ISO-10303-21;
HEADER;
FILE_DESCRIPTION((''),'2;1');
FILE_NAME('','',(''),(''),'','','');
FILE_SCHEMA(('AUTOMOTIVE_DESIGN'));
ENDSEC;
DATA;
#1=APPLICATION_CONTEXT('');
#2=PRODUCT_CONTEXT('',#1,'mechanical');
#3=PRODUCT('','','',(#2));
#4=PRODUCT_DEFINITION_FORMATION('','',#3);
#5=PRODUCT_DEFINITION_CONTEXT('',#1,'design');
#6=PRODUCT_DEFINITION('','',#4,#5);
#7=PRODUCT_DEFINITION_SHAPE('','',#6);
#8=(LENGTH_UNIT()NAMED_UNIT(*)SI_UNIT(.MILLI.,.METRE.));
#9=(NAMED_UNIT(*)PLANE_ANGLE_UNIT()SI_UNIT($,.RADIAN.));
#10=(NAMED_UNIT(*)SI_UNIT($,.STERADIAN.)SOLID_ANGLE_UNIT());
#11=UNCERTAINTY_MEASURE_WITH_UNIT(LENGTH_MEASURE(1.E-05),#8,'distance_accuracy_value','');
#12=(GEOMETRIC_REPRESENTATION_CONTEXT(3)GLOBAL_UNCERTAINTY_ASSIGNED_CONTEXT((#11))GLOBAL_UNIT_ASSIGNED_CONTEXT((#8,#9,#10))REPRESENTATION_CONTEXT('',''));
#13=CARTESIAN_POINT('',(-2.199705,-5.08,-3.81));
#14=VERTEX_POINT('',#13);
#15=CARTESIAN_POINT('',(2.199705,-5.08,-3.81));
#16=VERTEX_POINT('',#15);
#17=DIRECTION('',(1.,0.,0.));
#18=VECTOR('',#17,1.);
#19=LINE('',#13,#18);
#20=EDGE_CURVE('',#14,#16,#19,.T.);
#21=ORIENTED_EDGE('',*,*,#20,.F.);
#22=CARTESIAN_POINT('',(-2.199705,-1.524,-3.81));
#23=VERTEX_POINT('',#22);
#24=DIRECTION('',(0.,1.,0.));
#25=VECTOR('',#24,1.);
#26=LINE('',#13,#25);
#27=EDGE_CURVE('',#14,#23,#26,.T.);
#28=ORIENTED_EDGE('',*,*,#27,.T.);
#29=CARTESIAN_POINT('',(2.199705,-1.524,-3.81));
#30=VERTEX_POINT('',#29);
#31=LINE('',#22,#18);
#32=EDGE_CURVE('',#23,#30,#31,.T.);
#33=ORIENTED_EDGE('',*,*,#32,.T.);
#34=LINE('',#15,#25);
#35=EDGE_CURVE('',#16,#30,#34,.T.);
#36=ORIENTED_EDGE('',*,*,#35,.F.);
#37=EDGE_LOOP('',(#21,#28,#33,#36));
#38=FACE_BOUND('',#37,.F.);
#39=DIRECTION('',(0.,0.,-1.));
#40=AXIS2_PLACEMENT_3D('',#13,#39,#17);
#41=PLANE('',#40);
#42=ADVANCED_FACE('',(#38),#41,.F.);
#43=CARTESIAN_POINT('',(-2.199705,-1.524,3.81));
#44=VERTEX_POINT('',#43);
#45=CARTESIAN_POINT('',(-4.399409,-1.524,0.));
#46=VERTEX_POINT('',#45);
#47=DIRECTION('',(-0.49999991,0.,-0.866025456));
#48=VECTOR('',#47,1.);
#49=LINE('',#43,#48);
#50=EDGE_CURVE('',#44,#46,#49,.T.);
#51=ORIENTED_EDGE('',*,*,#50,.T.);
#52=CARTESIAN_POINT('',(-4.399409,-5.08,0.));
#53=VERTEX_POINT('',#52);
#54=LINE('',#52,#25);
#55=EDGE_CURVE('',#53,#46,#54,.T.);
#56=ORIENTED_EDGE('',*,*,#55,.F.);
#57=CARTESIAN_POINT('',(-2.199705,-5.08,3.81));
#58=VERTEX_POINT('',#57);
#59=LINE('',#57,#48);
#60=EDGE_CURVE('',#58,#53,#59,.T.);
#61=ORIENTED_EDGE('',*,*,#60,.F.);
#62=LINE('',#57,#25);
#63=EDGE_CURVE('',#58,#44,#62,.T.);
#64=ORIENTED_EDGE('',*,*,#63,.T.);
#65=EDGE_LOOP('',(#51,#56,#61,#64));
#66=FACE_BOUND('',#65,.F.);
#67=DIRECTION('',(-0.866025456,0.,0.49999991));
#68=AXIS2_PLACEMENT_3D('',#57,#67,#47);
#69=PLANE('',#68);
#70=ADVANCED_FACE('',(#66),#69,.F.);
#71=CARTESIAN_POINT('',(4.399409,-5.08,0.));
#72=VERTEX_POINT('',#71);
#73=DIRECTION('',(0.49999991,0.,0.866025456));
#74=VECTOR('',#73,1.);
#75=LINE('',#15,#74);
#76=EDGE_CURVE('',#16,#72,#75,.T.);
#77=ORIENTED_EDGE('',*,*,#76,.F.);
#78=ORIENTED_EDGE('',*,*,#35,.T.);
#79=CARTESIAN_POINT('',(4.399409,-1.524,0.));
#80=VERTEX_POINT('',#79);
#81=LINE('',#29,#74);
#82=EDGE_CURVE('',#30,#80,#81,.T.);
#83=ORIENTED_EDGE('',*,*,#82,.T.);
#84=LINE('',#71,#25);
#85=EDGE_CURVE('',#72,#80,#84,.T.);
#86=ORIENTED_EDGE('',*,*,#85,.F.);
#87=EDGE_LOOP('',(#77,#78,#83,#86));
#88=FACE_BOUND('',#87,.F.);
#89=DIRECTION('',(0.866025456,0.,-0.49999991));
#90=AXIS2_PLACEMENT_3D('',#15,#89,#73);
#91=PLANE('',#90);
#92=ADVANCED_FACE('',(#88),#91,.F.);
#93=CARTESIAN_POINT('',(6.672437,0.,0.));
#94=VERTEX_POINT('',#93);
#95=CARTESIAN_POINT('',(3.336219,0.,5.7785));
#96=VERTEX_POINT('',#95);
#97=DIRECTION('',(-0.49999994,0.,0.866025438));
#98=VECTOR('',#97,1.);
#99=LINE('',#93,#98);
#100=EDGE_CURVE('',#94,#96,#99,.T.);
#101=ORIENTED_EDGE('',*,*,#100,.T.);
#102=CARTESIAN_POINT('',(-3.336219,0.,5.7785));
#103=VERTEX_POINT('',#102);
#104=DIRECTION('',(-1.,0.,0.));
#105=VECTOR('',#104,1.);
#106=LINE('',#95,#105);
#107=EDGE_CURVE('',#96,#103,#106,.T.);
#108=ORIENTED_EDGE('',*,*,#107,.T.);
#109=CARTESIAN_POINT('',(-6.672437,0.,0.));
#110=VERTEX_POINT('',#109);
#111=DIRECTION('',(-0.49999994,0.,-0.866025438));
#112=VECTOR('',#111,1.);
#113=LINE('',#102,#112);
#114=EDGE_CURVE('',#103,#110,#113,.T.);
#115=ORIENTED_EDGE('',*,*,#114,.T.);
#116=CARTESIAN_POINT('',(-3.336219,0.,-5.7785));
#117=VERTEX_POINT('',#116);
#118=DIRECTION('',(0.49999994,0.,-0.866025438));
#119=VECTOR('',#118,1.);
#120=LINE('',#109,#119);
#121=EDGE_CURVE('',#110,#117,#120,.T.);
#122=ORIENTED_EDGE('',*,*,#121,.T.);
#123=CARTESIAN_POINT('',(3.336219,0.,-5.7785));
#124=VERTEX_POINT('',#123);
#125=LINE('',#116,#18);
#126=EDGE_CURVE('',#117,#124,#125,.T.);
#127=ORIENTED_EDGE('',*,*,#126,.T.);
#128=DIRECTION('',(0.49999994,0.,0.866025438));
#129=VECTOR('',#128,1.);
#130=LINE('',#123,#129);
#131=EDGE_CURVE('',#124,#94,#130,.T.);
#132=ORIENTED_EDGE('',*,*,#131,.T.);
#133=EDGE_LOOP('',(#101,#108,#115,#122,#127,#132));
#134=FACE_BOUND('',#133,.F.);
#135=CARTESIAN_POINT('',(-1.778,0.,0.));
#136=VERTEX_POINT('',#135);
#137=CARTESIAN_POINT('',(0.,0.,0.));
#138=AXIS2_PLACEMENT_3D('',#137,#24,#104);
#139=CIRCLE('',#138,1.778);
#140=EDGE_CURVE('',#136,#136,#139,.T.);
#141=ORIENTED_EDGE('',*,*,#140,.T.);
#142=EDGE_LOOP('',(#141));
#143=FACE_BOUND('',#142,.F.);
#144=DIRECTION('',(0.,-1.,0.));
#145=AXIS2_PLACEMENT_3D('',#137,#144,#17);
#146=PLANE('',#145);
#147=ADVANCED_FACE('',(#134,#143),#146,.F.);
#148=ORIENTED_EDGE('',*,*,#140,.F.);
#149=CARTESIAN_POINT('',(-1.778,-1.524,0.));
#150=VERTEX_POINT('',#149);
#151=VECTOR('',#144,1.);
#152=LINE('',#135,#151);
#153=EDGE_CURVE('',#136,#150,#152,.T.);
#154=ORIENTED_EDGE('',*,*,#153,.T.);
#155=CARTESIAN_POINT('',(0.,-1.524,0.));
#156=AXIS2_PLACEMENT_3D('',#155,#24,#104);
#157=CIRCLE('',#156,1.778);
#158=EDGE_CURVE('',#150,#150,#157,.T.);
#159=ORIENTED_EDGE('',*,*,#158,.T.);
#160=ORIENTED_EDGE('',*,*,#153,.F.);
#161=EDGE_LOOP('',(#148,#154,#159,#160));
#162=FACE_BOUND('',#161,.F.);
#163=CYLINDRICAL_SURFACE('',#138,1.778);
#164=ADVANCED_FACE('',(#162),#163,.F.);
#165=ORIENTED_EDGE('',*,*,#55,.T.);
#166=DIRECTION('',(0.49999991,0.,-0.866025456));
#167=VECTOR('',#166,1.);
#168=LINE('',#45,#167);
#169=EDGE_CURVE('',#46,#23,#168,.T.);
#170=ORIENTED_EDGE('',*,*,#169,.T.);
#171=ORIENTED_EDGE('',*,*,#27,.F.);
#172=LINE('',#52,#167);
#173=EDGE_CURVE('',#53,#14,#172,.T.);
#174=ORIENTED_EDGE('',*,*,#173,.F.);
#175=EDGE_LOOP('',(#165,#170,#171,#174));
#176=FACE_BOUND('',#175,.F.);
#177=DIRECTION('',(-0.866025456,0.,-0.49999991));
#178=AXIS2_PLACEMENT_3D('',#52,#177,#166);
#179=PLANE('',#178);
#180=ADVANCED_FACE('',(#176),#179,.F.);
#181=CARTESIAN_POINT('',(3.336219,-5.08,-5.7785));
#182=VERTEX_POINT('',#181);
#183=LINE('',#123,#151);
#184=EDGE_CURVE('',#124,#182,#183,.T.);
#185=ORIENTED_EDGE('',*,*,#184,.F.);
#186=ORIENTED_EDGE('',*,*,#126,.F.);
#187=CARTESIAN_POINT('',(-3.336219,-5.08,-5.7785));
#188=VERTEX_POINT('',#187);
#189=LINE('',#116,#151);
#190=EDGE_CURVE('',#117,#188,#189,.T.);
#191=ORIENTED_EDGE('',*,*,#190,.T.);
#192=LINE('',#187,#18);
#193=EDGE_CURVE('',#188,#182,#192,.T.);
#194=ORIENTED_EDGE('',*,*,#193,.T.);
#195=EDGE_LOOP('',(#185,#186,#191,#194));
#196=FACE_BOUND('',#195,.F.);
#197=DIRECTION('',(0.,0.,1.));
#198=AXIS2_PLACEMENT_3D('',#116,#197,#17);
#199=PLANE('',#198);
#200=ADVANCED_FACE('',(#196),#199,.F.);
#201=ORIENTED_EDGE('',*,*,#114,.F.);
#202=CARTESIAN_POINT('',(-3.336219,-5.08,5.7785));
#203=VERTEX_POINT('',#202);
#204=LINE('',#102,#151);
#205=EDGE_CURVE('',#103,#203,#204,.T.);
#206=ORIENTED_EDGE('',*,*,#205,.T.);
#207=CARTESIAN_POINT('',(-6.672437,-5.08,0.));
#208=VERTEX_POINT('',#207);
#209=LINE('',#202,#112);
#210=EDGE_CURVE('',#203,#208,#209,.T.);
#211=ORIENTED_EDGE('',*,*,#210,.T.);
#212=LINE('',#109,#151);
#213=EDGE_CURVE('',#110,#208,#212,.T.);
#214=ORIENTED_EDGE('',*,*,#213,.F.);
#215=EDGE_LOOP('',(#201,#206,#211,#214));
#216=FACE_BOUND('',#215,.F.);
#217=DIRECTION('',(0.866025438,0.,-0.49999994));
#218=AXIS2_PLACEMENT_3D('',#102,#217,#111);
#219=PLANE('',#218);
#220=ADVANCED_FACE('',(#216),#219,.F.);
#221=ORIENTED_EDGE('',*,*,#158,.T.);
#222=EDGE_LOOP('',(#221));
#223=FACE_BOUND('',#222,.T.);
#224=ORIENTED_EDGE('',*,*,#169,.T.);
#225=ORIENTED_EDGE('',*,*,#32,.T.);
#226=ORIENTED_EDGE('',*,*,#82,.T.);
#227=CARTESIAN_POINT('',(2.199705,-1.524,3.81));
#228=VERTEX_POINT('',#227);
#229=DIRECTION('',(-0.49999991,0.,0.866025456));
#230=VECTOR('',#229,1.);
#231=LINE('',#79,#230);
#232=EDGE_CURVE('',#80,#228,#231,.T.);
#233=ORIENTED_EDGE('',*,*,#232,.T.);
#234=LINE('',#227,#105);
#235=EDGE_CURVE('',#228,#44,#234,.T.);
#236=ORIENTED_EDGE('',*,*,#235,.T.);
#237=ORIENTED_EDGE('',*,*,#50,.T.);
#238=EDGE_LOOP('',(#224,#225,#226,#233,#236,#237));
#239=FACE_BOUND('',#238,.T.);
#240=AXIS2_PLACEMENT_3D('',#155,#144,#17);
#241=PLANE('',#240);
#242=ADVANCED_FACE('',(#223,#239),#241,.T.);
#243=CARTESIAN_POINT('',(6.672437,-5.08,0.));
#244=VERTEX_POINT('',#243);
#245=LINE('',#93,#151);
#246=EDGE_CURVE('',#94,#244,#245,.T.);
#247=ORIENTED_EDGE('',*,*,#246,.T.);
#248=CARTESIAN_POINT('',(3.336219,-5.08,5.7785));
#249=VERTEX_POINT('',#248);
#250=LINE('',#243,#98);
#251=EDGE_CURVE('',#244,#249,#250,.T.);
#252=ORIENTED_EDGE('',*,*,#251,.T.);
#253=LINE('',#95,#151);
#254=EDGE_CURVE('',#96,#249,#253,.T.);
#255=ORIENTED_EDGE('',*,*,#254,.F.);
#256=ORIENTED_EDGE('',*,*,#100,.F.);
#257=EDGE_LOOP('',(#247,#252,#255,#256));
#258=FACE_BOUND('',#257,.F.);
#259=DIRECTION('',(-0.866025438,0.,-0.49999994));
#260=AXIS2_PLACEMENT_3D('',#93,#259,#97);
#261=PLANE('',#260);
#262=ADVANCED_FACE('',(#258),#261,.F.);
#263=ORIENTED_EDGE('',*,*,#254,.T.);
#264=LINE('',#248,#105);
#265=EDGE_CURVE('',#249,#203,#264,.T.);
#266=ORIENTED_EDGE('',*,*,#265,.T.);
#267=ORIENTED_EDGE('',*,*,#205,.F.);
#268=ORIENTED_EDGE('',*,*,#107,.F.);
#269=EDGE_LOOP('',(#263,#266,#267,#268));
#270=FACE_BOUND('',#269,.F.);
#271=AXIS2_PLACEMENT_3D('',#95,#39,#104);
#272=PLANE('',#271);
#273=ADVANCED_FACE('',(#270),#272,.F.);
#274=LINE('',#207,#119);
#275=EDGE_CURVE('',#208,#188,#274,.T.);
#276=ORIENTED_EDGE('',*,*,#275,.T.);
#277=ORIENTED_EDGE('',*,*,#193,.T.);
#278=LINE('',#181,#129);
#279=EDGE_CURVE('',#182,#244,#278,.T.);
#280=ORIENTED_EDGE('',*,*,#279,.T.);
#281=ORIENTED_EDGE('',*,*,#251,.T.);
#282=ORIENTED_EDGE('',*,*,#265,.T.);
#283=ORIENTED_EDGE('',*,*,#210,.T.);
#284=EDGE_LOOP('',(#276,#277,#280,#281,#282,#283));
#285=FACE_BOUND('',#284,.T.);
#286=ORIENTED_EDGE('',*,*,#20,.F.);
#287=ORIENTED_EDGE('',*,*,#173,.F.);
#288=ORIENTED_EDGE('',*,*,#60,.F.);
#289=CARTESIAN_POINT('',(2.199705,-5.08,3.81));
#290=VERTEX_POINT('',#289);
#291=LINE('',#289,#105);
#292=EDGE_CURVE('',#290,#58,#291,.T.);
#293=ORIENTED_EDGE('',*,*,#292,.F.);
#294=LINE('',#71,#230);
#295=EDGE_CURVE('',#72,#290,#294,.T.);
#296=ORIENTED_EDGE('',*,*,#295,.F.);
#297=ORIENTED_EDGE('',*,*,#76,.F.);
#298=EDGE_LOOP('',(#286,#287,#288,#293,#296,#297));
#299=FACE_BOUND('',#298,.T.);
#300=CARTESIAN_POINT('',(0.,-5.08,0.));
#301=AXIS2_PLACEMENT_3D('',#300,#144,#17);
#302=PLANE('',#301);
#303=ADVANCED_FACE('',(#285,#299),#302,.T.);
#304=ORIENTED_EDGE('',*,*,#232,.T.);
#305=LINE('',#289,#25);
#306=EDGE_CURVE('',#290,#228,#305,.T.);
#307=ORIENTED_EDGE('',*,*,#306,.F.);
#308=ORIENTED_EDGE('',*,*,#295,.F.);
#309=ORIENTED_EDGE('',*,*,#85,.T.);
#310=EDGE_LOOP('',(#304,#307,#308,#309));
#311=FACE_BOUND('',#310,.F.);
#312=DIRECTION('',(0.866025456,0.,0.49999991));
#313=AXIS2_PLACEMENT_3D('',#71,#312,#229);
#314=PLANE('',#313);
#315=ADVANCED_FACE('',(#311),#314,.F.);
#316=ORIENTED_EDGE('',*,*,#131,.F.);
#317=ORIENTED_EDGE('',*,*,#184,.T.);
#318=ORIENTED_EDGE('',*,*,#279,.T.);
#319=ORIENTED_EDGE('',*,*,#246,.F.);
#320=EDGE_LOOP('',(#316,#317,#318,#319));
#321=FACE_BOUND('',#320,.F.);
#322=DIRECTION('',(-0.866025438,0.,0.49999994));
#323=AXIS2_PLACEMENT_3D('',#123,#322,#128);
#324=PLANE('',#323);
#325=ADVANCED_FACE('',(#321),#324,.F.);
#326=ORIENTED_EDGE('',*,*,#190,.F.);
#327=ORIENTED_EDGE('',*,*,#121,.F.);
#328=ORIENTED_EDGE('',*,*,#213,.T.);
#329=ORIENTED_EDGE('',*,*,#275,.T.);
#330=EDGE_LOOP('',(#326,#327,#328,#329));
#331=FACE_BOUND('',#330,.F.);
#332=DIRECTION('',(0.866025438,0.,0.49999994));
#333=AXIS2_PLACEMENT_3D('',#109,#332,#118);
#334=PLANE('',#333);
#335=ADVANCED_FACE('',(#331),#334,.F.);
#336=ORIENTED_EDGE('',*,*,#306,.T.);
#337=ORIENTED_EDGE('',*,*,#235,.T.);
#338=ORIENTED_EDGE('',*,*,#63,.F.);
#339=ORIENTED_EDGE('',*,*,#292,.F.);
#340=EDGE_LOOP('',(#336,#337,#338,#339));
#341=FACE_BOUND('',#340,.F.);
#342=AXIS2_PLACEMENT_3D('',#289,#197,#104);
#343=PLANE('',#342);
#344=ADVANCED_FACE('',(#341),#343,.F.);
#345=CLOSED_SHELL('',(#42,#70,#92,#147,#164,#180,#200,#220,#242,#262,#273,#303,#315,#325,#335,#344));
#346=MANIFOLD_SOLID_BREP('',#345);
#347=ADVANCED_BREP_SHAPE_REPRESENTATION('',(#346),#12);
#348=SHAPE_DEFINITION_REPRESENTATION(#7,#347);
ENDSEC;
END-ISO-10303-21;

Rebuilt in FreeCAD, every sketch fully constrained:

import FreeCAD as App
import Part
import Sketcher

V = App.Vector
Q = App.Units.Quantity

doc = App.newDocument("Part")
body = doc.addObject("PartDesign::Body", "Body")

# Sketch on XZ plane
sketch1 = body.newObject("Sketcher::SketchObject", "Sketch")
sketch1.AttachmentSupport = (doc.getObject("XZ_Plane"), [""])
sketch1.MapMode = "FlatFace"
sketch1.addGeometry(Part.LineSegment(V(3, 6, 0), V(-3, 6, 0)), False)
sketch1.addGeometry(Part.LineSegment(V(-3, 6, 0), V(-7, 0, 0)), False)
sketch1.addGeometry(Part.LineSegment(V(-7, 0, 0), V(-3, -6, 0)), False)
sketch1.addGeometry(Part.LineSegment(V(-3, -6, 0), V(3, -6, 0)), False)
sketch1.addGeometry(Part.LineSegment(V(3, -6, 0), V(7, 0, 0)), False)
sketch1.addGeometry(Part.LineSegment(V(7, 0, 0), V(3, 6, 0)), False)
sketch1.addConstraint(Sketcher.Constraint("Coincident", 0, 2, 1, 1))
sketch1.addConstraint(Sketcher.Constraint("Coincident", 1, 2, 2, 1))
sketch1.addConstraint(Sketcher.Constraint("Coincident", 2, 2, 3, 1))
sketch1.addConstraint(Sketcher.Constraint("Coincident", 3, 2, 4, 1))
sketch1.addConstraint(Sketcher.Constraint("Coincident", 4, 2, 5, 1))
sketch1.addConstraint(Sketcher.Constraint("Coincident", 5, 2, 0, 1))
sketch1.addConstraint(Sketcher.Constraint("Horizontal", 0))
sketch1.addConstraint(Sketcher.Constraint("Horizontal", 3))
sketch1.addConstraint(Sketcher.Constraint("Symmetric", 0, 2, 3, 2, -1, 1))
sketch1.addConstraint(Sketcher.Constraint("Symmetric", 1, 2, 4, 2, -1, 1))
sketch1.addConstraint(Sketcher.Constraint("PointOnObject", 1, 2, -1))
sketch1.addConstraint(Sketcher.Constraint("Parallel", 2, 5))
sketch1.addConstraint(Sketcher.Constraint("Vertical", 0, 2, 2, 2))
sketch1.addConstraint(Sketcher.Constraint("Angle", 1, Q("-119.999996 deg")))
sketch1.addConstraint(Sketcher.Constraint("DistanceY", 2, 2, 0, 2, Q("0.455 in")))
sketch1.addConstraint(Sketcher.Constraint("DistanceX", 0, 2, 0, 1, 6.672438))
pad1 = body.newObject("PartDesign::Pad", "Pad")
pad1.Profile = sketch1
pad1.Length = Q("0.2 in")

# Sketch on XZ plane
sketch2 = body.newObject("Sketcher::SketchObject", "Sketch001")
sketch2.AttachmentSupport = (doc.getObject("XZ_Plane"), [""])
sketch2.MapMode = "FlatFace"
sketch2.AttachmentOffset = App.Placement(V(0, 0, 0.2 * 25.4), App.Rotation())
sketch2.addGeometry(Part.LineSegment(V(-2.2, -3.8, 0), V(2.2, -3.8, 0)), False)
sketch2.addGeometry(Part.LineSegment(V(2.2, -3.8, 0), V(4.4, 0, 0)), False)
sketch2.addGeometry(Part.LineSegment(V(4.4, 0, 0), V(2.2, 3.8, 0)), False)
sketch2.addGeometry(Part.LineSegment(V(2.2, 3.8, 0), V(-2.2, 3.8, 0)), False)
sketch2.addGeometry(Part.LineSegment(V(-2.2, 3.8, 0), V(-4.4, 0, 0)), False)
sketch2.addGeometry(Part.LineSegment(V(-4.4, 0, 0), V(-2.2, -3.8, 0)), False)
sketch2.addConstraint(Sketcher.Constraint("Coincident", 0, 2, 1, 1))
sketch2.addConstraint(Sketcher.Constraint("Coincident", 1, 2, 2, 1))
sketch2.addConstraint(Sketcher.Constraint("Coincident", 2, 2, 3, 1))
sketch2.addConstraint(Sketcher.Constraint("Coincident", 3, 2, 4, 1))
sketch2.addConstraint(Sketcher.Constraint("Coincident", 4, 2, 5, 1))
sketch2.addConstraint(Sketcher.Constraint("Coincident", 5, 2, 0, 1))
sketch2.addConstraint(Sketcher.Constraint("Horizontal", 0))
sketch2.addConstraint(Sketcher.Constraint("Horizontal", 3))
sketch2.addConstraint(Sketcher.Constraint("Symmetric", 0, 2, 3, 2, -1, 1))
sketch2.addConstraint(Sketcher.Constraint("Symmetric", 1, 2, 4, 2, -1, 1))
sketch2.addConstraint(Sketcher.Constraint("PointOnObject", 1, 2, -1))
sketch2.addConstraint(Sketcher.Constraint("Parallel", 2, 5))
sketch2.addConstraint(Sketcher.Constraint("Vertical", 0, 2, 2, 2))
sketch2.addConstraint(Sketcher.Constraint("Angle", 1, Q("60.000006 deg")))
sketch2.addConstraint(Sketcher.Constraint("DistanceY", 0, 2, 2, 2, Q("0.3 in")))
sketch2.addConstraint(Sketcher.Constraint("DistanceX", 0, 1, 0, 2, 4.39941))
pocket1 = body.newObject("PartDesign::Pocket", "Pocket")
pocket1.Profile = sketch2
pocket1.Length = Q("0.14 in")

# Sketch on XZ plane
sketch3 = body.newObject("Sketcher::SketchObject", "Sketch002")
sketch3.AttachmentSupport = (doc.getObject("XZ_Plane"), [""])
sketch3.MapMode = "FlatFace"
sketch3.addGeometry(Part.Circle(V(0, 0, 0), V(0, 0, 1), 1.8), False)
sketch3.addConstraint(Sketcher.Constraint("Coincident", 0, 3, -1, 1))
sketch3.addConstraint(Sketcher.Constraint("Diameter", 0, Q("0.14 in")))
pocket2 = body.newObject("PartDesign::Pocket", "Pocket001")
pocket2.Profile = sketch3
pocket2.Type = "ThroughAll"
pocket2.Reversed = True

doc.recompute()
